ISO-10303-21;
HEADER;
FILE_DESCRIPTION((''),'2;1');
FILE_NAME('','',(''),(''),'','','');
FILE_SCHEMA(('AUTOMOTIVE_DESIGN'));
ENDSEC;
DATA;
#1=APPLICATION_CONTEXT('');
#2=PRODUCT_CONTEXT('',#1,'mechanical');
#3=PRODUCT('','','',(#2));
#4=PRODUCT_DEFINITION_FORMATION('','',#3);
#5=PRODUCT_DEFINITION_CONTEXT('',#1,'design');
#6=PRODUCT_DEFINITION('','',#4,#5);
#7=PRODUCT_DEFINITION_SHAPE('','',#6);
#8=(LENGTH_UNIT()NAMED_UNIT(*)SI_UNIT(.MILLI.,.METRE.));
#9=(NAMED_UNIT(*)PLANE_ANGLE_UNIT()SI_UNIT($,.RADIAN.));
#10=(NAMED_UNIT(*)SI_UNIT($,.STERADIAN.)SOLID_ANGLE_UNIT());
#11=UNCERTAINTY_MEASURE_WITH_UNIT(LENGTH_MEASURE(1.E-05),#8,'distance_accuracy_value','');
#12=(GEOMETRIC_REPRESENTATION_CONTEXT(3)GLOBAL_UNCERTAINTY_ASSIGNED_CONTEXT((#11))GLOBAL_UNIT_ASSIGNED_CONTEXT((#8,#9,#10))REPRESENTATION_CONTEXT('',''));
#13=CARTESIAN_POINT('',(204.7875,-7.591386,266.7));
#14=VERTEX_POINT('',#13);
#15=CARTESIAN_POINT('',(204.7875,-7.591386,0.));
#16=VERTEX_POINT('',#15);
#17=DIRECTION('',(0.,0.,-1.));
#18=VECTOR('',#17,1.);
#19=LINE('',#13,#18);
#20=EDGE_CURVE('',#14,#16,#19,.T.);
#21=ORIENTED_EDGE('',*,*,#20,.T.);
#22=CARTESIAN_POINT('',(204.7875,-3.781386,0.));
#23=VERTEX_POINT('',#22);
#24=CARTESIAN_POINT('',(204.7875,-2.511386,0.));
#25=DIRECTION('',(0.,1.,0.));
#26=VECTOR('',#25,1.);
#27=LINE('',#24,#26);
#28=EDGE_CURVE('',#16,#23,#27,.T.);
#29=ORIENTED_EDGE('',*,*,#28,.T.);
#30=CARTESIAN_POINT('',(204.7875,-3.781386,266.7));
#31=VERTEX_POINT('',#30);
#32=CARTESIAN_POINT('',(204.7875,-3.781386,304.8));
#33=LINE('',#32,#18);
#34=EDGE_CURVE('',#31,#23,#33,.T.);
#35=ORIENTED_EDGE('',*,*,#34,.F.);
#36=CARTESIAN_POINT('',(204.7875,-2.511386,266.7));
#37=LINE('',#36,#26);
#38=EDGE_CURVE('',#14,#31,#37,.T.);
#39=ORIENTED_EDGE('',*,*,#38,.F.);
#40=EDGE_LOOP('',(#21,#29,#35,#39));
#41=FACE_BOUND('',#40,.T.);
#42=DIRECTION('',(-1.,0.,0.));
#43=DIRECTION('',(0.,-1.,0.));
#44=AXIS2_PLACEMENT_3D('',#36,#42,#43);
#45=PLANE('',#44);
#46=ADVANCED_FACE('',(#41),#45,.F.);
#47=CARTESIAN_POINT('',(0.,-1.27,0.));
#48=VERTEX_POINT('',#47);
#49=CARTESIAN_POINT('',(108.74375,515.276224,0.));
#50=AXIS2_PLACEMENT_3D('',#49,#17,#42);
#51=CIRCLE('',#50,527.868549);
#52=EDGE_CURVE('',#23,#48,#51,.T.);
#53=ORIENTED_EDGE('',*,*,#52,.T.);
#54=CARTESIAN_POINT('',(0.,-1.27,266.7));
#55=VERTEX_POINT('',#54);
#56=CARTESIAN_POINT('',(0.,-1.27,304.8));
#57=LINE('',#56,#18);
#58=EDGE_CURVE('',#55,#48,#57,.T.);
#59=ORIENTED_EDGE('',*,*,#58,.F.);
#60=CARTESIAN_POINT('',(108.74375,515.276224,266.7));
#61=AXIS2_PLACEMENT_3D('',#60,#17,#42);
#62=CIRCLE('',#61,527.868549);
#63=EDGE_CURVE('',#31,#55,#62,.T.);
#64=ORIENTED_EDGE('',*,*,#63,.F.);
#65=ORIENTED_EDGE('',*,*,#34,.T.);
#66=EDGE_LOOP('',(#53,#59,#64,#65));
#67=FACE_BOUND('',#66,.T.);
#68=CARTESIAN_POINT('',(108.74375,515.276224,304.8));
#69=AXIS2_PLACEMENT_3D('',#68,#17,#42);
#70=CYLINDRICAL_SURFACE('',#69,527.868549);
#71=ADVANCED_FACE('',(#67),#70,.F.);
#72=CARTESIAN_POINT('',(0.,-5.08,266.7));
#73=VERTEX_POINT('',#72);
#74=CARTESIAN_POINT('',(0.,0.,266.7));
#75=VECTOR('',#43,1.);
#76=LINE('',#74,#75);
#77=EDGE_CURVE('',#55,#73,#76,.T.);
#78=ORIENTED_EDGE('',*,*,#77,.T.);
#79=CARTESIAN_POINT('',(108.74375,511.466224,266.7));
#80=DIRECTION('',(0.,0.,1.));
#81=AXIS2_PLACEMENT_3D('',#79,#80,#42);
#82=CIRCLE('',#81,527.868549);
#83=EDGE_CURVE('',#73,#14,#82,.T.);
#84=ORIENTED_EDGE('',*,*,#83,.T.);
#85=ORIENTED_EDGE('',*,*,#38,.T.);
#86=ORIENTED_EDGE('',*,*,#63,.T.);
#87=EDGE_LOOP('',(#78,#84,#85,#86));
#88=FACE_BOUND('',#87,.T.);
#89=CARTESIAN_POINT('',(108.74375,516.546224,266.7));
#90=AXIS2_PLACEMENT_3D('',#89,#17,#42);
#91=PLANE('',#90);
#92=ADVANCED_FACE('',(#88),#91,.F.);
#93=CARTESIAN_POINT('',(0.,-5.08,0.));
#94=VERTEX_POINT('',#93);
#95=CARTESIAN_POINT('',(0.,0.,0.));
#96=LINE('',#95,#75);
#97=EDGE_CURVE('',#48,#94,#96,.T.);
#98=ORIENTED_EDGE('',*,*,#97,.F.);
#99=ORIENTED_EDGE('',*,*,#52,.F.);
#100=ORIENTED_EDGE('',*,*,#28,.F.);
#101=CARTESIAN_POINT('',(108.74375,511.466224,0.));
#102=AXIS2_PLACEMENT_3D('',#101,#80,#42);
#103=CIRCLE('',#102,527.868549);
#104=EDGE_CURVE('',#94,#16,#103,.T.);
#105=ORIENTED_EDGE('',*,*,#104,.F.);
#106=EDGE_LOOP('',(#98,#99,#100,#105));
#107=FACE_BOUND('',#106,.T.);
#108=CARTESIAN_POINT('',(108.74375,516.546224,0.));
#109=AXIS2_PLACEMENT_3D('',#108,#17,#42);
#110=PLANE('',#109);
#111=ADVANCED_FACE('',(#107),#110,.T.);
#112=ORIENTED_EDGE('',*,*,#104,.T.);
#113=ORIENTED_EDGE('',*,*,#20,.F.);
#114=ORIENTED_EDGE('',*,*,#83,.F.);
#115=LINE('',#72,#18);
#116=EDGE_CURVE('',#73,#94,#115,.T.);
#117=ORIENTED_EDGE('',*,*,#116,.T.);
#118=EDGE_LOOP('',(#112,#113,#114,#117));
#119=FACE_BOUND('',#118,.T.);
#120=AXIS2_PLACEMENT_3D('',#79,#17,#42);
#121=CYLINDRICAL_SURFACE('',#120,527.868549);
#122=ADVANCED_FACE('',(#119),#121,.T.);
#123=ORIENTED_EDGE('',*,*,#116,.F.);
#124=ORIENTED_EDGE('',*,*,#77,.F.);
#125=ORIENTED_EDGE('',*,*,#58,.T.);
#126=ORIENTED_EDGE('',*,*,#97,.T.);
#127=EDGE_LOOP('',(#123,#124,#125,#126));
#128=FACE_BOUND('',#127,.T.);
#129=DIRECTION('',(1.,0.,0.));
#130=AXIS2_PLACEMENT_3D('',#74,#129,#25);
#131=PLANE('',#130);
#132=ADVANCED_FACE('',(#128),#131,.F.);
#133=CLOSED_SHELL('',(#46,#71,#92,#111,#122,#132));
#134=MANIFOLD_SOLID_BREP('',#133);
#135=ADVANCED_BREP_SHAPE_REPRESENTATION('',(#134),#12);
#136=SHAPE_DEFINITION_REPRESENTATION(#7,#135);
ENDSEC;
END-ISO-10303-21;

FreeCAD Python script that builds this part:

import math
import FreeCAD as App
import Part
import Sketcher
from FreeCAD import Vector
Q = App.Units.Quantity

doc = App.newDocument("Part")
body = doc.addObject("PartDesign::Body", "Body")

# Sketch on XY plane
sketch1 = body.newObject("Sketcher::SketchObject", "Sketch")
sketch1.AttachmentSupport = (doc.getObject("XY_Plane"), [""])
sketch1.MapMode = "FlatFace"
sketch1.addGeometry([
    Part.LineSegment(Vector(204.7875, -7.591386, 0), Vector(204.7875, -2.511386, 0)),
    Part.ArcOfCircle(Part.Circle(Vector(108.74375, 516.546224, 0), Vector(0, 0, 1), 527.868549), math.radians(-101.888358), math.radians(-79.516851)),
    Part.LineSegment(Vector(0, 0, 0), Vector(0, -5.08, 0)),
    Part.ArcOfCircle(Part.Circle(Vector(108.74375, 511.466224, 0), Vector(0, 0, 1), 527.868549), math.radians(-101.888358), math.radians(-79.516851)),
], False)
sketch1.addConstraint([
    Sketcher.Constraint("Coincident", 0, 2, 1, 2),
    Sketcher.Constraint("Coincident", 1, 1, 2, 1),
    Sketcher.Constraint("Coincident", 2, 2, 3, 1),
    Sketcher.Constraint("Coincident", 3, 2, 0, 1),
    Sketcher.Constraint("Vertical", 0),
    Sketcher.Constraint("Vertical", 2),
    Sketcher.Constraint("Equal", 1, 3),
    Sketcher.Constraint("PointOnObject", 2, 2, -2),
    Sketcher.Constraint("Vertical", 1, 3, 3, 3),
    Sketcher.Constraint("DistanceY", 0, 1, 0, 2, Q("0.2 in")),
    Sketcher.Constraint("DistanceY", 2, 2, -1, 1, Q("0.2 in")),
    Sketcher.Constraint("DistanceX", -1, 1, 1, 3, Q("4.28125 in")),
    Sketcher.Constraint("DistanceX", -1, 1, 0, 2, Q("8.0625 in")),
    Sketcher.Constraint("Radius", 1, Q("527.868549 mm")),
])
pad1 = body.newObject("PartDesign::Pad", "Pad")
pad1.Profile = sketch1
pad1.Length = Q("10.5 in")

# Sketch on XY plane
sketch2 = body.newObject("Sketcher::SketchObject", "Sketch001")
sketch2.AttachmentSupport = (doc.getObject("XY_Plane"), [""])
sketch2.MapMode = "FlatFace"
sketch2.addGeometry([
    Part.ArcOfCircle(Part.Circle(Vector(108.74375, 516.546224, 0), Vector(0, 0, 1), 527.868549), math.radians(-101.888358), math.radians(-79.516851)),
    Part.LineSegment(Vector(204.7875, -2.511386, 0), Vector(204.7875, -3.781386, 0)),
    Part.ArcOfCircle(Part.Circle(Vector(108.74375, 515.276224, 0), Vector(0, 0, 1), 527.868549), math.radians(-101.888358), math.radians(-79.516851)),
    Part.LineSegment(Vector(0, -1.27, 0), Vector(0, 0, 0)),
], False)
sketch2.addConstraint([
    Sketcher.Constraint("Coincident", 0, 2, 1, 1),
    Sketcher.Constraint("Coincident", 1, 2, 2, 2),
    Sketcher.Constraint("Coincident", 2, 1, 3, 1),
    Sketcher.Constraint("Coincident", 3, 2, 0, 1),
    Sketcher.Constraint("Vertical", 1),
    Sketcher.Constraint("Vertical", 3),
    Sketcher.Constraint("Coincident", 3, 2, -1, 1),
    Sketcher.Constraint("Equal", 0, 2),
    Sketcher.Constraint("Vertical", 0, 3, 2, 3),
    Sketcher.Constraint("DistanceY", 1, 2, 1, 1, Q("0.05 in")),
    Sketcher.Constraint("DistanceX", -1, 1, 0, 3, Q("4.28125 in")),
    Sketcher.Constraint("DistanceX", -1, 1, 1, 2, Q("8.0625 in")),
    Sketcher.Constraint("Radius", 0, Q("527.868549 mm")),
])
pocket1 = body.newObject("PartDesign::Pocket", "Pocket")
pocket1.Profile = sketch2
pocket1.Length = Q("12 in")
pocket1.Reversed = True

doc.recompute()
